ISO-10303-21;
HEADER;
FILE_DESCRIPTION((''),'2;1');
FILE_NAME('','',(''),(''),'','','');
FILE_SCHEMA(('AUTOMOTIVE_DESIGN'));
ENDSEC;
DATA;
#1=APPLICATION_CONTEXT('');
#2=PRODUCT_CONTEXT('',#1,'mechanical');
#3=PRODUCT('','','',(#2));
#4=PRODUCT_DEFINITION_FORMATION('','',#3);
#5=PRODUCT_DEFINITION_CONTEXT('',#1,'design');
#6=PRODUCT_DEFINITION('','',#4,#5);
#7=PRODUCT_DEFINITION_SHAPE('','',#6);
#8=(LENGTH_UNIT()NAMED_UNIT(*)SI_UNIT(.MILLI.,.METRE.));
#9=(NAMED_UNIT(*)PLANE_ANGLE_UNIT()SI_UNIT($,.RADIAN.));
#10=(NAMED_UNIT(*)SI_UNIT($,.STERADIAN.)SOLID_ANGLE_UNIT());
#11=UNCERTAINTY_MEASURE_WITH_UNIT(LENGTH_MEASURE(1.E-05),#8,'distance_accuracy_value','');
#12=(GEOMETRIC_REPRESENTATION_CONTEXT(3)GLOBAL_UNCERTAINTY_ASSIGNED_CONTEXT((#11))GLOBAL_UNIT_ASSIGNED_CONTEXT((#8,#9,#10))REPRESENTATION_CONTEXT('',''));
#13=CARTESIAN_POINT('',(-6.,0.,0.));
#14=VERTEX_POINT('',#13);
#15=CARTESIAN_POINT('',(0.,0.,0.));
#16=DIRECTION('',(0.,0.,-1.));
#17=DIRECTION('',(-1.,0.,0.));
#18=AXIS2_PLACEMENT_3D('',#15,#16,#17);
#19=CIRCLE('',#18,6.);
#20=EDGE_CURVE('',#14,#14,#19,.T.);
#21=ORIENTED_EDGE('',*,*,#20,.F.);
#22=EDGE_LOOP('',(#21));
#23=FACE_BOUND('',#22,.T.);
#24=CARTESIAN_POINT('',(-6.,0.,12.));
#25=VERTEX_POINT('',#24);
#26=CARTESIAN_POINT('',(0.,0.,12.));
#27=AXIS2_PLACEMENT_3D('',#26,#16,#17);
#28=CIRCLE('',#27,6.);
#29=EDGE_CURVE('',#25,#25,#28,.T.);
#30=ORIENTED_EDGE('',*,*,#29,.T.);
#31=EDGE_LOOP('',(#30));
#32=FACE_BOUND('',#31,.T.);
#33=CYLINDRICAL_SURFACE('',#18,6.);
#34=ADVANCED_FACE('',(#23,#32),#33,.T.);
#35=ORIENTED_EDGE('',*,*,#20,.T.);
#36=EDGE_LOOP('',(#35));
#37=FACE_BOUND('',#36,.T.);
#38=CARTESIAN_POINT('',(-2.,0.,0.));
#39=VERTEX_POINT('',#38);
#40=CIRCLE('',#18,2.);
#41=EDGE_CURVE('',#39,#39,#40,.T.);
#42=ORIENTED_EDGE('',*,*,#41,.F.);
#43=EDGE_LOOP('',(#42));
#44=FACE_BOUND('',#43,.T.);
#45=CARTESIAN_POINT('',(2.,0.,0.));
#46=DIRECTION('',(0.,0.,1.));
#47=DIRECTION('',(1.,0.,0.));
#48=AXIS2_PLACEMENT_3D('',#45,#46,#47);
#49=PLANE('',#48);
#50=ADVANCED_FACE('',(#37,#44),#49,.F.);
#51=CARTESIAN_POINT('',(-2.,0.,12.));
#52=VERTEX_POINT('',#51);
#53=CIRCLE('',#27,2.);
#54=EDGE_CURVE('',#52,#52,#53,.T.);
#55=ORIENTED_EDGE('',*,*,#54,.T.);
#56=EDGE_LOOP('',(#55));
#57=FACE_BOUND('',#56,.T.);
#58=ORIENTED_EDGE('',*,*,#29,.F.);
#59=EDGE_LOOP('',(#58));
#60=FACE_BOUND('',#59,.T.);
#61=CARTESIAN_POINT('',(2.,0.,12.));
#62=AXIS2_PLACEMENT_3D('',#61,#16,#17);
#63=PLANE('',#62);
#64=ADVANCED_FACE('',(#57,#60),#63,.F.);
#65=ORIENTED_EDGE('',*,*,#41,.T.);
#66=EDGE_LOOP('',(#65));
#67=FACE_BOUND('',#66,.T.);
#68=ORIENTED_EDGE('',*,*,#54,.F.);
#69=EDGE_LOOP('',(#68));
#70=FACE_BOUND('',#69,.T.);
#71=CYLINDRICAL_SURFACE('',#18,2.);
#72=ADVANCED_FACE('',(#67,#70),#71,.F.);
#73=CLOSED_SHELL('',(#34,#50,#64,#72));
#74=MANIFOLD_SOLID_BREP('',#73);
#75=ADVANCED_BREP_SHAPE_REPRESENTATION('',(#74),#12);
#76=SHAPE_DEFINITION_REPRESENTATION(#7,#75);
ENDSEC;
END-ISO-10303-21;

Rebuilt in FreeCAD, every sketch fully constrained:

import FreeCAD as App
import Part
import Sketcher


def add_polygon(sketch, points):
    """Adds a closed chain of lines whose ends are joined by coincident constraints."""
    first, n = sketch.GeometryCount, len(points)
    for a, b in zip(points, points[1:] + points[:1]):
        sketch.addGeometry(Part.LineSegment(App.Vector(*a, 0), App.Vector(*b, 0)), False)
    for i in range(n):
        sketch.addConstraint(Sketcher.Constraint("Coincident", first + i, 2, first + (i + 1) % n, 1))

doc = App.newDocument("Part")
body = doc.addObject("PartDesign::Body", "Body")

sketch1 = body.newObject("Sketcher::SketchObject", "Sketch")
sketch1.AttachmentSupport = (doc.getObject("XZ_Plane"), [""])
sketch1.MapMode = "FlatFace"
add_polygon(sketch1, [(2, 0), (2, 12), (6, 12), (6, 0)])
sketch1.addConstraint([
    Sketcher.Constraint("Vertical", 0),
    Sketcher.Constraint("Horizontal", 1),
    Sketcher.Constraint("Vertical", 2),
    Sketcher.Constraint("Horizontal", 3),
    Sketcher.Constraint("PointOnObject", 2, 2, -1),
    Sketcher.Constraint("DistanceX", 1, 1, 1, 2, 4.0),
    Sketcher.Constraint("DistanceY", 0, 1, 0, 2, 12.0),
    Sketcher.Constraint("DistanceX", -1, 1, 0, 2, 2.0),
])
revolution = body.newObject("PartDesign::Revolution", "Revolution")
revolution.Profile = sketch1
revolution.ReferenceAxis = (sketch1, ["V_Axis"])
revolution.Angle = 360

doc.recompute()
